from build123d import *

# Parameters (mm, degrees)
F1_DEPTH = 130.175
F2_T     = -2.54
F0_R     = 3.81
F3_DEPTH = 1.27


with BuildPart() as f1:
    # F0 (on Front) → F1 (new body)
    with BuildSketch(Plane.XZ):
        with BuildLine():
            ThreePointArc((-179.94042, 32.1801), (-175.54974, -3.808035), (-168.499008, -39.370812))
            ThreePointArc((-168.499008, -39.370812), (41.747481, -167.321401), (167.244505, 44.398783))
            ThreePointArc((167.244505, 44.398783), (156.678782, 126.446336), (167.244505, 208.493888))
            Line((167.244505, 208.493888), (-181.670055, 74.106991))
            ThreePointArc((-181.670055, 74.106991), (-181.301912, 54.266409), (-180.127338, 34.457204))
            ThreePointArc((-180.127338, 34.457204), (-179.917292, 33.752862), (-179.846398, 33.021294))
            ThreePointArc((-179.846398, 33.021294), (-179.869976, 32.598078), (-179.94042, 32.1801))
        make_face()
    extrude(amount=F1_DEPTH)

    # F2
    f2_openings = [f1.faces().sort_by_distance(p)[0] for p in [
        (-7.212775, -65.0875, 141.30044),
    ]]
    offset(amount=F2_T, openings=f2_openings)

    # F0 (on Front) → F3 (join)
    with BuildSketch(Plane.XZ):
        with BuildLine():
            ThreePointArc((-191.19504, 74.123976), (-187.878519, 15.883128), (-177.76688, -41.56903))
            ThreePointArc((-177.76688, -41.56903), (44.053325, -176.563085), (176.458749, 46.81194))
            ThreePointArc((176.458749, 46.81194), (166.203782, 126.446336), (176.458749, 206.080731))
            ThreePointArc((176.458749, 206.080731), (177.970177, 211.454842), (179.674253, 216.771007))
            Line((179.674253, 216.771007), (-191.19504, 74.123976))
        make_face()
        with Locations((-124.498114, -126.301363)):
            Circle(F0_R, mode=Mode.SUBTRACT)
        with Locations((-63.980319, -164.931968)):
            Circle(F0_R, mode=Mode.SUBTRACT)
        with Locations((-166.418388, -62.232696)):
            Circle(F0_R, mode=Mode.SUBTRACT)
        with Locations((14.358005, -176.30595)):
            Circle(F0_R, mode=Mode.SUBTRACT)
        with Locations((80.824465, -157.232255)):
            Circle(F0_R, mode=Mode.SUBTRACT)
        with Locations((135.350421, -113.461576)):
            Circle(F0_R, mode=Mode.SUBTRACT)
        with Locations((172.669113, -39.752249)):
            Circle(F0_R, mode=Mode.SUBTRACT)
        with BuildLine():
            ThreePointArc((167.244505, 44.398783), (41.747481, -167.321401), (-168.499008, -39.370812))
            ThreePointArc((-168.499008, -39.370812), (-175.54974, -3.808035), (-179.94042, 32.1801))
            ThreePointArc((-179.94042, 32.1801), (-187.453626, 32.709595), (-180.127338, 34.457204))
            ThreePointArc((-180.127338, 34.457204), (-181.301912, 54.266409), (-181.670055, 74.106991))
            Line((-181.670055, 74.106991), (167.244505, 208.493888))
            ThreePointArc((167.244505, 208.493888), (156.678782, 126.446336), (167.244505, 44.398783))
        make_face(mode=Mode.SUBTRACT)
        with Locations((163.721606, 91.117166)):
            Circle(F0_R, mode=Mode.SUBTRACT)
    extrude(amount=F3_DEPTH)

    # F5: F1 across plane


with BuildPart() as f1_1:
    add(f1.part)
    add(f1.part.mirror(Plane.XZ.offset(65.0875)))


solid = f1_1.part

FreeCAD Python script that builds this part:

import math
import FreeCAD as App
import Part
import Sketcher
Q = App.Units.Quantity


def faces_at(feature, points):
    """Names of the faces that lie closest to the given points."""
    faces = feature.Shape.Faces
    near = lambda p: min(range(len(faces)), key=lambda i: faces[i].distToShape(Part.Vertex(*p))[0])
    return sorted({f"Face{near(p) + 1}" for p in points})

doc = App.newDocument("Part")
params = doc.addObject("Spreadsheet::Sheet", "Params")
for row, (alias, value) in enumerate([
    ("pad1_length", "5.125 in"),
    ("thickness_wall", "0.1 in"),
    ("sketch2_diameter", "0.3 in"),
    ("sketch2_diameter2", "0.3 in"),
    ("sketch2_diameter3", "0.3 in"),
    ("sketch2_diameter4", "0.3 in"),
    ("sketch2_diameter5", "0.3 in"),
    ("pad2_length", "0.05 in"),
], start=1):
    params.set(f"A{row}", alias)
    params.set(f"B{row}", "=" + value)
    params.setAlias(f"B{row}", alias)

body = doc.addObject("PartDesign::Body", "Body")

# Sketch on XZ plane
sketch1 = body.newObject("Sketcher::SketchObject", "Sketch")
sketch1.AttachmentSupport = (doc.getObject("XZ_Plane"), [""])
sketch1.MapMode = "FlatFace"
sketch1.addGeometry([
    Part.ArcOfCircle(Part.Circle(App.Vector(306.264984, 73.236975, 0), App.Vector(0, 0, 1), 487.935817), math.radians(-175.173196), math.radians(-166.656766)),  # 0
    Part.ArcOfCircle(Part.Circle(App.Vector(-0.140149, 0.561707, 0), App.Vector(0, 0, 1), 173.0298), math.radians(-166.656763), math.radians(14.675829)),  # 1
    Part.ArcOfCircle(Part.Circle(App.Vector(480.529567, 126.446336, 0), App.Vector(0, 0, 1), 323.850785), math.radians(165.324171), math.radians(194.675829)),  # 2
    Part.LineSegment(App.Vector(167.244505, 208.493888, 0), App.Vector(-181.670055, 74.106991, 0)),  # 3
    Part.ArcOfCircle(Part.Circle(App.Vector(306.264894, 73.236942, 0), App.Vector(0, 0, 1), 487.935724), math.radians(179.897835), math.radians(184.558513)),  # 4
    Part.ArcOfCircle(Part.Circle(App.Vector(-183.656368, 33.021301, 0), App.Vector(0, 0, 1), 3.80997), math.radians(-0.0001), math.radians(22.140589)),  # 5
    Part.ArcOfCircle(Part.Circle(App.Vector(-183.656326, 33.021286, 0), App.Vector(0, 0, 1), 3.809928), math.radians(-12.755315), math.radians(0.00012)),  # 6
], False)
sketch1.addConstraint([
    Sketcher.Constraint("Coincident", 0, 2, 1, 1),
    Sketcher.Constraint("Coincident", 1, 2, 2, 2),
    Sketcher.Constraint("Coincident", 2, 1, 3, 1),
    Sketcher.Constraint("Coincident", 3, 2, 4, 1),
    Sketcher.Constraint("Coincident", 4, 2, 5, 2),
    Sketcher.Constraint("Coincident", 5, 1, 6, 2),
    Sketcher.Constraint("Coincident", 6, 1, 0, 1),
    Sketcher.Constraint("Radius", 1, Q("173.0298 mm")),
    Sketcher.Constraint("Radius", 5, Q("3.80997 mm")),
    Sketcher.Constraint("Radius", 0, Q("487.935817 mm")),
    Sketcher.Constraint("Radius", 2, Q("323.850785 mm")),
    Sketcher.Constraint("Radius", 4, Q("487.935724 mm")),
    Sketcher.Constraint("Radius", 6, Q("3.809928 mm")),
    Sketcher.Constraint("DistanceY", -1, 1, 5, 3, Q("33.021301 mm")),
    Sketcher.Constraint("DistanceX", 5, 1, -1, 1, Q("179.846398 mm")),
    Sketcher.Constraint("DistanceY", -1, 1, 6, 1, Q("32.1801 mm")),
    Sketcher.Constraint("DistanceY", 0, 2, 6, 3, Q("72.392098 mm")),
    Sketcher.Constraint("DistanceX", 0, 2, 4, 3, Q("474.763902 mm")),
    Sketcher.Constraint("DistanceX", 1, 3, -1, 1, Q("0.140149 mm")),
    Sketcher.Constraint("DistanceY", -1, 1, 3, 2, Q("74.106991 mm")),
    Sketcher.Constraint("DistanceX", 6, 1, -1, 1, Q("179.94042 mm")),
    Sketcher.Constraint("DistanceY", 1, 3, 0, 3, Q("72.675268 mm")),
    Sketcher.Constraint("DistanceY", 0, 3, 2, 3, Q("53.20936 mm")),
    Sketcher.Constraint("DistanceY", 5, 3, 4, 3, Q("40.215641 mm")),
    Sketcher.Constraint("DistanceX", 1, 2, 4, 3, Q("139.020389 mm")),
    Sketcher.Constraint("DistanceX", 2, 1, 4, 3, Q("139.020389 mm")),
    Sketcher.Constraint("DistanceY", 5, 1, 4, 2, Q("1.43591 mm")),
])
pad1 = body.newObject("PartDesign::Pad", "Pad")
pad1.Profile = sketch1
pad1.setExpression("Length", "Params.pad1_length")
doc.recompute()

thickness = body.newObject("PartDesign::Thickness", "Thickness")
thickness.Base = (pad1, faces_at(pad1, [(-7.213, -65.088, 141.3)]))
thickness.setExpression("Value", "Params.thickness_wall")
thickness.Reversed = True
thickness.Join = "Arc"

# Sketch on XZ plane
sketch2 = body.newObject("Sketcher::SketchObject", "Sketch001")
sketch2.AttachmentSupport = (doc.getObject("XZ_Plane"), [""])
sketch2.MapMode = "FlatFace"
sketch2.addGeometry([
    Part.ArcOfCircle(Part.Circle(App.Vector(306.264677, 73.236931, 0), App.Vector(0, 0, 1), 497.460508), math.radians(179.897833), math.radians(193.343238)),  # 0
    Part.ArcOfCircle(Part.Circle(App.Vector(-0.140148, 0.561706, 0), App.Vector(0, 0, 1), 182.554799), math.radians(-166.656764), math.radians(14.675829)),  # 1
    Part.ArcOfCircle(Part.Circle(App.Vector(480.529576, 126.446336, 0), App.Vector(0, 0, 1), 314.325794), math.radians(165.324172), math.radians(194.675828)),  # 2
    Part.ArcOfCircle(Part.Circle(App.Vector(326.322535, 166.832271, 0), App.Vector(0, 0, 1), 154.918029), math.radians(161.194542), math.radians(165.324172)),  # 3
    Part.LineSegment(App.Vector(179.674253, 216.771007, 0), App.Vector(-191.19504, 74.123976, 0)),  # 4
    Part.Circle(App.Vector(-124.498114, -126.301363, 0), App.Vector(0, 0, 1), 3.81),  # 5
    Part.Circle(App.Vector(-63.980319, -164.931968, 0), App.Vector(0, 0, 1), 3.81),  # 6
    Part.Circle(App.Vector(-166.418388, -62.232696, 0), App.Vector(0, 0, 1), 3.81),  # 7
    Part.Circle(App.Vector(14.358005, -176.30595, 0), App.Vector(0, 0, 1), 3.81),  # 8
    Part.Circle(App.Vector(80.824465, -157.232255, 0), App.Vector(0, 0, 1), 3.81),  # 9
    Part.Circle(App.Vector(135.350421, -113.461576, 0), App.Vector(0, 0, 1), 3.81),  # 10
    Part.Circle(App.Vector(172.669113, -39.752249, 0), App.Vector(0, 0, 1), 3.81),  # 11
    Part.ArcOfCircle(Part.Circle(App.Vector(480.529567, 126.446336, 0), App.Vector(0, 0, 1), 323.850785), math.radians(165.324171), math.radians(194.675829)),  # 12
    Part.ArcOfCircle(Part.Circle(App.Vector(-0.140149, 0.561707, 0), App.Vector(0, 0, 1), 173.0298), math.radians(-166.656763), math.radians(14.675829)),  # 13
    Part.ArcOfCircle(Part.Circle(App.Vector(306.264984, 73.236975, 0), App.Vector(0, 0, 1), 487.935817), math.radians(-175.173196), math.radians(-166.656766)),  # 14
    Part.ArcOfCircle(Part.Circle(App.Vector(-183.656398, 33.021294, 0), App.Vector(0, 0, 1), 3.81), math.radians(22.140503), math.radians(347.244799)),  # 15
    Part.ArcOfCircle(Part.Circle(App.Vector(306.264894, 73.236942, 0), App.Vector(0, 0, 1), 487.935724), math.radians(179.897835), math.radians(184.558513)),  # 16
    Part.LineSegment(App.Vector(-181.670055, 74.106991, 0), App.Vector(167.244505, 208.493888, 0)),  # 17
    Part.Circle(App.Vector(163.721606, 91.117166, 0), App.Vector(0, 0, 1), 3.81),  # 18
], False)
sketch2.addConstraint([
    Sketcher.Constraint("Coincident", 0, 2, 1, 1),
    Sketcher.Constraint("Coincident", 1, 2, 2, 2),
    Sketcher.Constraint("Coincident", 2, 1, 3, 2),
    Sketcher.Constraint("Coincident", 3, 1, 4, 1),
    Sketcher.Constraint("Coincident", 4, 2, 0, 1),
    Sketcher.Constraint("Coincident", 12, 2, 13, 2),
    Sketcher.Constraint("Coincident", 13, 1, 14, 2),
    Sketcher.Constraint("Coincident", 14, 1, 15, 2),
    Sketcher.Constraint("Coincident", 15, 1, 16, 2),
    Sketcher.Constraint("Coincident", 16, 1, 17, 1),
    Sketcher.Constraint("Coincident", 17, 2, 12, 1),
    Sketcher.Constraint("Coincident", 12, 3, 2, 3),
    Sketcher.Constraint("Coincident", 13, 3, 1, 3),
    Sketcher.Constraint("Diameter", 5, Q("0.3 in")),
    Sketcher.Constraint("Diameter", 6, Q("0.3 in")),
    Sketcher.Constraint("Diameter", 7, Q("0.3 in")),
    Sketcher.Constraint("Diameter", 8, Q("0.3 in")),
    Sketcher.Constraint("Diameter", 9, Q("0.3 in")),
    Sketcher.Constraint("Diameter", 10, Q("0.3 in")),
    Sketcher.Constraint("Diameter", 11, Q("0.3 in")),
    Sketcher.Constraint("Diameter", 18, Q("0.3 in")),
    Sketcher.Constraint("Radius", 15, Q("0.15 in")),
    Sketcher.Constraint("Radius", 1, Q("182.554799 mm")),
    Sketcher.Constraint("Radius", 13, Q("173.0298 mm")),
    Sketcher.Constraint("Radius", 3, Q("154.918029 mm")),
    Sketcher.Constraint("Radius", 0, Q("497.460508 mm")),
    Sketcher.Constraint("Radius", 2, Q("314.325794 mm")),
    Sketcher.Constraint("Radius", 14, Q("487.935817 mm")),
    Sketcher.Constraint("Radius", 16, Q("487.935724 mm")),
    Sketcher.Constraint("DistanceY", -1, 1, 14, 1, Q("32.1801 mm")),
    Sketcher.Constraint("DistanceX", 0, 3, 2, 3, Q("174.2649 mm")),
    Sketcher.Constraint("DistanceY", 5, 3, 2, 3, Q("252.747699 mm")),
    Sketcher.Constraint("DistanceY", 6, 3, 0, 3, Q("238.168899 mm")),
    Sketcher.Constraint("DistanceY", 8, 3, 11, 3, Q("136.553701 mm")),
    Sketcher.Constraint("DistanceY", 0, 3, 2, 1, Q("132.8438 mm")),
    Sketcher.Constraint("DistanceX", 18, 3, 12, 2, Q("3.522899 mm")),
    Sketcher.Constraint("DistanceX", 18, 3, 17, 2, Q("3.522899 mm")),
    Sketcher.Constraint("DistanceY", -1, 1, 0, 3, Q("73.236931 mm")),
    Sketcher.Constraint("DistanceX", 1, 3, -1, 1, Q("0.140148 mm")),
    Sketcher.Constraint("DistanceY", -1, 1, 3, 3, Q("166.832271 mm")),
    Sketcher.Constraint("DistanceX", 6, 3, -1, 1, Q("63.980319 mm")),
    Sketcher.Constraint("DistanceX", 7, 3, -1, 1, Q("166.418388 mm")),
    Sketcher.Constraint("DistanceY", 8, 3, -1, 1, Q("176.30595 mm")),
    Sketcher.Constraint("DistanceX", -1, 1, 10, 3, Q("135.350421 mm")),
    Sketcher.Constraint("DistanceX", 0, 2, -1, 1, Q("177.76688 mm")),
    Sketcher.Constraint("DistanceX", -1, 1, 1, 2, Q("176.458749 mm")),
    Sketcher.Constraint("DistanceY", -1, 1, 1, 2, Q("46.81194 mm")),
    Sketcher.Constraint("DistanceX", 13, 1, -1, 1, Q("168.499008 mm")),
    Sketcher.Constraint("DistanceX", 14, 1, -1, 1, Q("179.94042 mm")),
    Sketcher.Constraint("DistanceY", -1, 1, 16, 1, Q("74.106991 mm")),
    Sketcher.Constraint("DistanceY", -1, 1, 17, 2, Q("208.493888 mm")),
    Sketcher.Constraint("DistanceX", 5, 3, 0, 3, Q("430.762791 mm")),
    Sketcher.Constraint("DistanceX", 5, 3, 8, 3, Q("138.856119 mm")),
    Sketcher.Constraint("DistanceX", 8, 3, 9, 3, Q("66.46646 mm")),
    Sketcher.Constraint("DistanceY", 9, 3, 1, 3, Q("157.793961 mm")),
    Sketcher.Constraint("DistanceY", 9, 3, 7, 3, Q("94.999559 mm")),
    Sketcher.Constraint("DistanceY", 9, 3, 10, 3, Q("43.770679 mm")),
    Sketcher.Constraint("DistanceX", 9, 3, 11, 3, Q("91.844648 mm")),
    Sketcher.Constraint("DistanceX", 15, 3, 7, 3, Q("17.23801 mm")),
    Sketcher.Constraint("DistanceX", 16, 3, 3, 3, Q("20.057641 mm")),
    Sketcher.Constraint("DistanceY", 16, 3, 3, 3, Q("93.595329 mm")),
    Sketcher.Constraint("DistanceY", 14, 3, 18, 3, Q("17.880191 mm")),
    Sketcher.Constraint("DistanceY", 18, 3, 3, 1, Q("125.653841 mm")),
    Sketcher.Constraint("DistanceY", 15, 3, 4, 2, Q("41.102682 mm")),
])
sketch2.setExpression("Constraints[13]", "Params.sketch2_diameter")
sketch2.setExpression("Constraints[14]", "Params.sketch2_diameter2")
sketch2.setExpression("Constraints[15]", "Params.sketch2_diameter3")
sketch2.setExpression("Constraints[16]", "Params.sketch2_diameter4")
sketch2.setExpression("Constraints[17]", "Params.sketch2_diameter5")
pad2 = body.newObject("PartDesign::Pad", "Pad001")
pad2.Profile = sketch2
pad2.setExpression("Length", "Params.pad2_length")
body2 = doc.addObject("PartDesign::Body", "Body001")
doc.recompute()

body2.BaseFeature = body
doc.recompute()

mirroring = doc.addObject("Part::Mirroring", "Mirroring")
mirroring.Source = body
mirroring.Base = App.Vector(0, -65.0875, 0)
mirroring.Normal = App.Vector(0, -1, 0)
body3 = doc.addObject("PartDesign::Body", "Body002")
body3.BaseFeature = mirroring
boolean = body2.newObject("PartDesign::Boolean", "Boolean")
boolean.Type = "Fuse"
boolean.addObjects([body3])
doc.recompute()
mirroring.Visibility = False

doc.recompute()
